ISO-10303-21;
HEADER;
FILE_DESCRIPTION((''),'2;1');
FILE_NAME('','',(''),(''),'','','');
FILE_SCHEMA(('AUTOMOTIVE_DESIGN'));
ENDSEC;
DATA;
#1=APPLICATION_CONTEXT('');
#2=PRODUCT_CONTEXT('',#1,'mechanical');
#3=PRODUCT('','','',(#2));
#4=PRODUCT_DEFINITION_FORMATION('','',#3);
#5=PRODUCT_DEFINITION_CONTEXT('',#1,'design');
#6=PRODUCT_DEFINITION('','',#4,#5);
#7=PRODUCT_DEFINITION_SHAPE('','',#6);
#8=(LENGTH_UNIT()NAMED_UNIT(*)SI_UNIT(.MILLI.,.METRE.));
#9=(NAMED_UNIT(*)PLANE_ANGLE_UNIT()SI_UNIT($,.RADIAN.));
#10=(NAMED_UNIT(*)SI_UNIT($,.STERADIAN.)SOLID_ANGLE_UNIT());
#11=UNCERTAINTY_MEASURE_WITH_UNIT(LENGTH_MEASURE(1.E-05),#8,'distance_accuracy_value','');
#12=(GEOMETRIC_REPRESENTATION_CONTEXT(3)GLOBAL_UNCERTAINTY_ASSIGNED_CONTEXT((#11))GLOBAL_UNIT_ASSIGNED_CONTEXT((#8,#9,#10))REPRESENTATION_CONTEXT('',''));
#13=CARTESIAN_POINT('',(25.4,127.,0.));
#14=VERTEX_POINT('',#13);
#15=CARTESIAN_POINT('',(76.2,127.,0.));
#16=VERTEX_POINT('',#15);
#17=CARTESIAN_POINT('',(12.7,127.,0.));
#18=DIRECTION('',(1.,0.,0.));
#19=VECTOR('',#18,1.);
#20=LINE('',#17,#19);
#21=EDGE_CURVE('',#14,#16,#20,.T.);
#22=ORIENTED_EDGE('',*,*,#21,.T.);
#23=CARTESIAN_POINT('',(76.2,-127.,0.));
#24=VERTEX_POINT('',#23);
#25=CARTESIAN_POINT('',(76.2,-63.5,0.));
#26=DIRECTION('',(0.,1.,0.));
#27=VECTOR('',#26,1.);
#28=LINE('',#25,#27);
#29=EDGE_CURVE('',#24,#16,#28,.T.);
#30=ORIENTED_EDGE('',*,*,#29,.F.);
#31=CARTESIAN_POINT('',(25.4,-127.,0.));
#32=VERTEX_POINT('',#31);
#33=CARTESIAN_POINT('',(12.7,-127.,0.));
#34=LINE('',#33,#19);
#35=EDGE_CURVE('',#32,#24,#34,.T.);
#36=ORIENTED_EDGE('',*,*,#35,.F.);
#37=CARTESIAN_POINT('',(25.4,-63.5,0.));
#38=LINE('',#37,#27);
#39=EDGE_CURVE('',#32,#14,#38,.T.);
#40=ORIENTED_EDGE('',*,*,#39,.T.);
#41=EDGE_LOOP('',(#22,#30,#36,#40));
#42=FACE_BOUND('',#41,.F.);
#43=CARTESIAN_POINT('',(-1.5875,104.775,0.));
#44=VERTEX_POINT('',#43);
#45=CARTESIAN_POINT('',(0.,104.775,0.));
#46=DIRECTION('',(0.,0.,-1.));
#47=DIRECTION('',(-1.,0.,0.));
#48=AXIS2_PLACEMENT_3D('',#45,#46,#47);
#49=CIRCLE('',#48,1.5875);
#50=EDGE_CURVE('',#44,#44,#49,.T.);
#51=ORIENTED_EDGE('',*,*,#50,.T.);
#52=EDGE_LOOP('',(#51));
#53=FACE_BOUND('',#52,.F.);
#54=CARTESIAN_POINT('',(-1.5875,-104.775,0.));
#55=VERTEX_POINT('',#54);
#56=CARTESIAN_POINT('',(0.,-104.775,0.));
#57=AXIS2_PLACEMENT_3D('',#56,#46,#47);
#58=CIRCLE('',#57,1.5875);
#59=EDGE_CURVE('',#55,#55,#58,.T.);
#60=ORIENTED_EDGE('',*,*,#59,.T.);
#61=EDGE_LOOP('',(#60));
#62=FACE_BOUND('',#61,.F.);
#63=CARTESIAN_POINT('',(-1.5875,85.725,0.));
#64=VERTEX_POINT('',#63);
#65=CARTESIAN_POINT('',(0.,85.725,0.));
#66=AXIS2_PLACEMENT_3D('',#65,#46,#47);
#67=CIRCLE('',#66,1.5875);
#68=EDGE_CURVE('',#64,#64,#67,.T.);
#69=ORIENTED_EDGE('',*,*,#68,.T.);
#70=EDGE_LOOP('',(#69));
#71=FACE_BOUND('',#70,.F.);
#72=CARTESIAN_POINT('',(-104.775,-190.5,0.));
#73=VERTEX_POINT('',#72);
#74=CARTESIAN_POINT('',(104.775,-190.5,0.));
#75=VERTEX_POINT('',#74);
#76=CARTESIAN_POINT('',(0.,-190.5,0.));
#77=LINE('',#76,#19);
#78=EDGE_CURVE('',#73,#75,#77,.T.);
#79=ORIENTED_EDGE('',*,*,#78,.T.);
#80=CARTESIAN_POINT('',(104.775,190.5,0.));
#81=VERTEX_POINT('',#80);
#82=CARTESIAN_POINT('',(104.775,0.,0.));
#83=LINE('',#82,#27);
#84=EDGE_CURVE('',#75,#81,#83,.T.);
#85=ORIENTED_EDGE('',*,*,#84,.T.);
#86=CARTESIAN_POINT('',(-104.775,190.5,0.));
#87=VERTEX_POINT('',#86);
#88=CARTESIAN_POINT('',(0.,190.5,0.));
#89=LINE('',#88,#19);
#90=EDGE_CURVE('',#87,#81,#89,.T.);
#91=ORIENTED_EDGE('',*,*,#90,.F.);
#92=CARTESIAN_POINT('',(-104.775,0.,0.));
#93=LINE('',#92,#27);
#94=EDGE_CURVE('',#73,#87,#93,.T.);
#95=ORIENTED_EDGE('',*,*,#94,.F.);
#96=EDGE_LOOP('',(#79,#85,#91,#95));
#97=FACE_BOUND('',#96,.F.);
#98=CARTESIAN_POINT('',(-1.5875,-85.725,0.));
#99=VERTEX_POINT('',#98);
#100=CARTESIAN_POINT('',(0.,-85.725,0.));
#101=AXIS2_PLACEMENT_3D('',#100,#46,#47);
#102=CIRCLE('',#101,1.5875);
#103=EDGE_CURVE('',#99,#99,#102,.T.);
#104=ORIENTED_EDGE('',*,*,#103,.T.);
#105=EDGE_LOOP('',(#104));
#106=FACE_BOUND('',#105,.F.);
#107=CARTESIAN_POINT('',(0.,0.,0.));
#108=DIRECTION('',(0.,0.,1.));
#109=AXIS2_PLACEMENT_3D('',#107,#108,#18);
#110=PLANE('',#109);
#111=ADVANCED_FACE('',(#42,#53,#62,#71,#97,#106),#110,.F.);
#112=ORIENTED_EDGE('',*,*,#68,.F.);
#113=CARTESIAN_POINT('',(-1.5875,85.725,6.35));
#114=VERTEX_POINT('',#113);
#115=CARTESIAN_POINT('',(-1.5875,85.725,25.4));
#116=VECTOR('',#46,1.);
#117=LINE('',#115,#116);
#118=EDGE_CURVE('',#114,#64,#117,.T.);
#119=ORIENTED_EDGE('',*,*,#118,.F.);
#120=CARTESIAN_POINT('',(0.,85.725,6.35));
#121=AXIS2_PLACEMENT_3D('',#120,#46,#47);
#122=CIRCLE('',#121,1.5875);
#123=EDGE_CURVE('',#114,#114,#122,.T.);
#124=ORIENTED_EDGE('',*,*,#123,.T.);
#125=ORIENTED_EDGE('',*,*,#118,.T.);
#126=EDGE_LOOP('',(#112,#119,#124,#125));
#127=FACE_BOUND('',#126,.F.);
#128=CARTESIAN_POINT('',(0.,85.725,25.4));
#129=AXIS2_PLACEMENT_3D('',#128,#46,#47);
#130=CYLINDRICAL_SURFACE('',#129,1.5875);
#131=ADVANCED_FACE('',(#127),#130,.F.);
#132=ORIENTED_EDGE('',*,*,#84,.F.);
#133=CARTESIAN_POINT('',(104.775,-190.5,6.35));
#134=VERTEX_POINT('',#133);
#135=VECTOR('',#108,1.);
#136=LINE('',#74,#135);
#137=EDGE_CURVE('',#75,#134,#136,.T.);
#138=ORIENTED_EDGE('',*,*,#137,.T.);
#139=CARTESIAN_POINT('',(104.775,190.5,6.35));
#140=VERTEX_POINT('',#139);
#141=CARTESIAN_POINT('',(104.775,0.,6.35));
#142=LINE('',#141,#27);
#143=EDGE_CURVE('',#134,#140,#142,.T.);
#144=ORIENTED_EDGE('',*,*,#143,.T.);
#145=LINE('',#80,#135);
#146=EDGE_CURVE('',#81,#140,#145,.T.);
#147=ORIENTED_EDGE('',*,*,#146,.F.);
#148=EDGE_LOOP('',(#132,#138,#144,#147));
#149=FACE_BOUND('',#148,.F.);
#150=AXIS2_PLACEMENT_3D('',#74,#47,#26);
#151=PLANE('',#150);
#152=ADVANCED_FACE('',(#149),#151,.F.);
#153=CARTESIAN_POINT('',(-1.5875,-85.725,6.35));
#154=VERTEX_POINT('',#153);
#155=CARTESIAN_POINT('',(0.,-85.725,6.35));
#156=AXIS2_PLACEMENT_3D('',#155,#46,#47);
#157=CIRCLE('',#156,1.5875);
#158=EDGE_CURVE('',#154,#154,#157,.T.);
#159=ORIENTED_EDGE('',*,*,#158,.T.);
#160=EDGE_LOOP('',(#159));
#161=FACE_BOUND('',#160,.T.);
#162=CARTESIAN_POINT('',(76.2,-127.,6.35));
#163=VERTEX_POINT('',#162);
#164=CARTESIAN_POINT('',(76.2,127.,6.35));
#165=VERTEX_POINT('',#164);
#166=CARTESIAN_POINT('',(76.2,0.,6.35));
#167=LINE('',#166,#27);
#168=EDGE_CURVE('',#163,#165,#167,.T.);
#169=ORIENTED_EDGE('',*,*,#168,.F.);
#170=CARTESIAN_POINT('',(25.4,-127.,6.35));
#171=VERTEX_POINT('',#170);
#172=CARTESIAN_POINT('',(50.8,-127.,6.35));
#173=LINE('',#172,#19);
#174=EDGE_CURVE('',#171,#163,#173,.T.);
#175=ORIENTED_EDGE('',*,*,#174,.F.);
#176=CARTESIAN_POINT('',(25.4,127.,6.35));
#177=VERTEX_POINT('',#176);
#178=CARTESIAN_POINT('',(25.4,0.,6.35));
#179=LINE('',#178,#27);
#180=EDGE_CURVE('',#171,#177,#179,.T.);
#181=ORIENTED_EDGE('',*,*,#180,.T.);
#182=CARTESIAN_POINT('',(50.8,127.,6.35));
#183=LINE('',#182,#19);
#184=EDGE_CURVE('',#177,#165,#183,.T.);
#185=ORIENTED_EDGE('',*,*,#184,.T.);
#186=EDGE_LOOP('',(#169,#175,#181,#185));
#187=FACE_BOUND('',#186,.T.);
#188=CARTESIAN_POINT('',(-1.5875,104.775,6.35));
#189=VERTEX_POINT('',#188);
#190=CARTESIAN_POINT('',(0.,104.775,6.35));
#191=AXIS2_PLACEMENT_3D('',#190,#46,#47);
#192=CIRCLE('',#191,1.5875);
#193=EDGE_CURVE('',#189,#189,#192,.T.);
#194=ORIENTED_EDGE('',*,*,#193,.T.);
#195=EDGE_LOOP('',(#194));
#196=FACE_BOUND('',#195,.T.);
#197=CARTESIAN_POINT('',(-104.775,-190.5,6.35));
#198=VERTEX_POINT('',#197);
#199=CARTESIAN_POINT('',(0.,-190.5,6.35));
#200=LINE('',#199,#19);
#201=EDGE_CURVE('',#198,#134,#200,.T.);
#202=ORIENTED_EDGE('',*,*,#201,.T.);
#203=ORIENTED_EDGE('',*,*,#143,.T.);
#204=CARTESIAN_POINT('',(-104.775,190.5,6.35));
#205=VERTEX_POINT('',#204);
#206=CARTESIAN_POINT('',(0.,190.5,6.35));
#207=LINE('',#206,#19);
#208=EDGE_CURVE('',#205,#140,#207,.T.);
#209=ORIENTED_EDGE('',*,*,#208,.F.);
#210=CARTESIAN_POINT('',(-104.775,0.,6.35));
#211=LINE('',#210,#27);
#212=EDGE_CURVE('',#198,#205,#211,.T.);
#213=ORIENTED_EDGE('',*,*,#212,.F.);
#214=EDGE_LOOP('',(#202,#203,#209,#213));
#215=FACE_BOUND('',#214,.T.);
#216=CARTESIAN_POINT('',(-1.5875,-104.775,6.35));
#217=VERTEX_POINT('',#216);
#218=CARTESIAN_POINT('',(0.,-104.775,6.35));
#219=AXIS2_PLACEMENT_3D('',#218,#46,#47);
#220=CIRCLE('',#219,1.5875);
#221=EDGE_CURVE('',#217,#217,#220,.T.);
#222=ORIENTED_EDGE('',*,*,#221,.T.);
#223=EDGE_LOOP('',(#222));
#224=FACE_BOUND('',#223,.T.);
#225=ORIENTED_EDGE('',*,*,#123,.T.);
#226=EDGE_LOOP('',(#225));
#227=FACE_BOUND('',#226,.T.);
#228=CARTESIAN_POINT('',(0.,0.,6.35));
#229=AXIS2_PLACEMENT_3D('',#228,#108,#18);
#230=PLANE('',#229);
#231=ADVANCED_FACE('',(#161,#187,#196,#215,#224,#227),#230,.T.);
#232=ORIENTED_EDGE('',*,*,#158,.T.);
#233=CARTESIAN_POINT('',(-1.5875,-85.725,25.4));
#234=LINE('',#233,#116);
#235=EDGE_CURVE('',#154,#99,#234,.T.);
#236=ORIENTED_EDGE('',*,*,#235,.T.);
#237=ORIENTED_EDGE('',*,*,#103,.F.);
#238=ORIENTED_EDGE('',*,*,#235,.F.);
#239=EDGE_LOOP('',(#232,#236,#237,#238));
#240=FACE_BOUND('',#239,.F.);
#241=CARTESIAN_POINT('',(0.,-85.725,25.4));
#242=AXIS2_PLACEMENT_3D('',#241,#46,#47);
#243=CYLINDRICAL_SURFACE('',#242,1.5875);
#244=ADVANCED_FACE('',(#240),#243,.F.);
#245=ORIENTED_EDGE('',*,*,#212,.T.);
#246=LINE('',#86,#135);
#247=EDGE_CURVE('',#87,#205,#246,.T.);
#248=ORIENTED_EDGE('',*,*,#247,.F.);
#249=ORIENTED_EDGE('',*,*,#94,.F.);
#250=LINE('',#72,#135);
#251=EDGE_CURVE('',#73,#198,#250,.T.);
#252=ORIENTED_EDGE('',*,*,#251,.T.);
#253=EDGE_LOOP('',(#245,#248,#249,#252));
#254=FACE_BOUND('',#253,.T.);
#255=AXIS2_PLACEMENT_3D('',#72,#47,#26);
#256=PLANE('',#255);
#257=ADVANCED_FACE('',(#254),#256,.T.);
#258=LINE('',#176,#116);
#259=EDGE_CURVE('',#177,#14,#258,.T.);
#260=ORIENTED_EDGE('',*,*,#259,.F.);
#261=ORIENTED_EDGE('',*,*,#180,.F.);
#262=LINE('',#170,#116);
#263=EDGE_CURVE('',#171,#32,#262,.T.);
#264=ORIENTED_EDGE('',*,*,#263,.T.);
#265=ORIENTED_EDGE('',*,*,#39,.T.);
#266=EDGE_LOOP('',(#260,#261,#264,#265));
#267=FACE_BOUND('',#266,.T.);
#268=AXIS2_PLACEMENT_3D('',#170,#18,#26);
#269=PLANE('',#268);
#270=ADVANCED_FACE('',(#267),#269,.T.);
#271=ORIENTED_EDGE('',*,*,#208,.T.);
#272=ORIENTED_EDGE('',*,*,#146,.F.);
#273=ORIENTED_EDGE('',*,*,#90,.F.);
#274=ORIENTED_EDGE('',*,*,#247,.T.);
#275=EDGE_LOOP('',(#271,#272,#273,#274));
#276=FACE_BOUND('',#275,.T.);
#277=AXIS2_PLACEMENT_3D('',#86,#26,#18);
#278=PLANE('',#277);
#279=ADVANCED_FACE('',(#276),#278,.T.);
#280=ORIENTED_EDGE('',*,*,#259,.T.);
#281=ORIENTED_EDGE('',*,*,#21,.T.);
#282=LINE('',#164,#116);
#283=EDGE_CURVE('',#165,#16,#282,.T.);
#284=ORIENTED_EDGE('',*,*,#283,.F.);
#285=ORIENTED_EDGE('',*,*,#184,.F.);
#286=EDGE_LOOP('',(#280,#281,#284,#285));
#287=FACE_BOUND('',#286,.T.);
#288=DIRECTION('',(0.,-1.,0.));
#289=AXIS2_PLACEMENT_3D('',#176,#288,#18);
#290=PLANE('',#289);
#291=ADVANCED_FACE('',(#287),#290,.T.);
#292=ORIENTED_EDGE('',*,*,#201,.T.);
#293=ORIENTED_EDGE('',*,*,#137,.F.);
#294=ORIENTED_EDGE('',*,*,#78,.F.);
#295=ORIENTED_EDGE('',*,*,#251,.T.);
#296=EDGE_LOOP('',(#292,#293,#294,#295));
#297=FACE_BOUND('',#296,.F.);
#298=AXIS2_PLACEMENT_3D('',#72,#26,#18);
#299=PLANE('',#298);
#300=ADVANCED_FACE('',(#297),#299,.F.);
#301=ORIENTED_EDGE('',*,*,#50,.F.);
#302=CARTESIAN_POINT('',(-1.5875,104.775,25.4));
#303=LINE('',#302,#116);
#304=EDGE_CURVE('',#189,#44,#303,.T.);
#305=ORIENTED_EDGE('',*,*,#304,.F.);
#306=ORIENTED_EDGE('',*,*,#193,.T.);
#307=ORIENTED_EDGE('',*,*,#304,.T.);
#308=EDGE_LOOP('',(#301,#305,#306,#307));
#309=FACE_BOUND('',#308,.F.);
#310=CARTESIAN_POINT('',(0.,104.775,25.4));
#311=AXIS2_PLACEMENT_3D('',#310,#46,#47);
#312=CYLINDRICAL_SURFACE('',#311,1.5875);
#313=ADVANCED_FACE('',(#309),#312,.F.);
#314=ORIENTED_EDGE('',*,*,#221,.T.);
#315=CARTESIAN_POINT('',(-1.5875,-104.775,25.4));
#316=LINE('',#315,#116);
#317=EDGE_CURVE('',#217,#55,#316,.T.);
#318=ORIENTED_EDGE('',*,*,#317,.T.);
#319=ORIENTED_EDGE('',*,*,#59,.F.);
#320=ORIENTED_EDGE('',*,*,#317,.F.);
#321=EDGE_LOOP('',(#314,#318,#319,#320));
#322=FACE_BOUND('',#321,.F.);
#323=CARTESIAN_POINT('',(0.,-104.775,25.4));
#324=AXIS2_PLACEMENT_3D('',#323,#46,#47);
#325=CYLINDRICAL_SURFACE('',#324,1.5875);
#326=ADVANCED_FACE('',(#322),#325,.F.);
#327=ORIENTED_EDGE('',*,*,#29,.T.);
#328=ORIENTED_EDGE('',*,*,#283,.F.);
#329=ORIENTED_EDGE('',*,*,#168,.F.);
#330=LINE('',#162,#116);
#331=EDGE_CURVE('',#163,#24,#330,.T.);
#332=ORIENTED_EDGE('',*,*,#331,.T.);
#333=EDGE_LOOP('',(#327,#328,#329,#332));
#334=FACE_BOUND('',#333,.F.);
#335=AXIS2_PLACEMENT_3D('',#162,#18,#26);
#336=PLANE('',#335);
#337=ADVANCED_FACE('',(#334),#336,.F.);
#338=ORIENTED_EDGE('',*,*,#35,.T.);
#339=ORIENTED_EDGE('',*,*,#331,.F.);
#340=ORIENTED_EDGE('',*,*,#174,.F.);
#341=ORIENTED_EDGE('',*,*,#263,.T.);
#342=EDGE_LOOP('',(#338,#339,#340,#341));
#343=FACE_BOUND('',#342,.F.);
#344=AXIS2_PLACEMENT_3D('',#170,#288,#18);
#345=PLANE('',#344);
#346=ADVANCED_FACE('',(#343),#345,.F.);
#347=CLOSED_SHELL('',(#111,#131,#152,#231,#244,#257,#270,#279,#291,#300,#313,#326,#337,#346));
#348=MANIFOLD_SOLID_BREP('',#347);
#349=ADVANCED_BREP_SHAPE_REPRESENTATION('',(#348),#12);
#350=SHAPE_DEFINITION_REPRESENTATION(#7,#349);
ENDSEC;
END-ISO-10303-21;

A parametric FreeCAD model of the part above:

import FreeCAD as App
import Part
import Sketcher

V = App.Vector
Q = App.Units.Quantity


def add_polygon(sketch, points):
    """Adds a closed chain of lines whose ends are joined by coincident constraints."""
    first, n = sketch.GeometryCount, len(points)
    for a, b in zip(points, points[1:] + points[:1]):
        sketch.addGeometry(Part.LineSegment(App.Vector(*a, 0), App.Vector(*b, 0)), False)
    for i in range(n):
        sketch.addConstraint(Sketcher.Constraint("Coincident", first + i, 2, first + (i + 1) % n, 1))

doc = App.newDocument("Part")
body = doc.addObject("PartDesign::Body", "Body")

sketch1 = doc.addObject("Sketcher::SketchObject", "Sketch")
body.addObject(sketch1)
sketch1.AttachmentSupport = (doc.XY_Plane, [""])
sketch1.MapMode = "FlatFace"
add_polygon(sketch1, [(-105, 190), (-105, -190), (105, -190), (105, 190)])
sketch1.addConstraint(Sketcher.Constraint("Vertical", 0))
sketch1.addConstraint(Sketcher.Constraint("Horizontal", 1))
sketch1.addConstraint(Sketcher.Constraint("Vertical", 2))
sketch1.addConstraint(Sketcher.Constraint("Horizontal", 3))
sketch1.addConstraint(Sketcher.Constraint("Symmetric", 0, 2, 2, 2, -1, 1))
sketch1.addConstraint(Sketcher.Constraint("DistanceY", 0, 2, 0, 1, Q("15 in")))
sketch1.addConstraint(Sketcher.Constraint("DistanceX", 1, 1, 1, 2, Q("8.25 in")))
pad1 = doc.addObject("PartDesign::Pad", "Pad")
body.addObject(pad1)
pad1.Profile = sketch1
pad1.Length = Q("0.25 in")

sketch2 = doc.addObject("Sketcher::SketchObject", "Sketch001")
body.addObject(sketch2)
sketch2.AttachmentSupport = (doc.XY_Plane, [""])
sketch2.MapMode = "FlatFace"
sketch2.AttachmentOffset = App.Placement(V(0, 0, 0.25 * 25.4), App.Rotation())
add_polygon(sketch2, [(25, 127), (25, -127), (76, -127), (76, 127)])
sketch2.addConstraint(Sketcher.Constraint("Vertical", 0))
sketch2.addConstraint(Sketcher.Constraint("Horizontal", 1))
sketch2.addConstraint(Sketcher.Constraint("Vertical", 2))
sketch2.addConstraint(Sketcher.Constraint("Horizontal", 3))
sketch2.addConstraint(Sketcher.Constraint("DistanceX", 1, 1, 1, 2, Q("2 in")))
sketch2.addConstraint(Sketcher.Constraint("DistanceY", 0, 2, 0, 1, Q("10 in")))
sketch2.addConstraint(Sketcher.Constraint("DistanceX", -1, 1, 0, 2, Q("1 in")))
sketch2.addConstraint(Sketcher.Constraint("DistanceY", 0, 2, -1, 1, Q("5 in")))
pocket1 = doc.addObject("PartDesign::Pocket", "Pocket")
body.addObject(pocket1)
pocket1.Profile = sketch2
pocket1.Length = Q("1 in")

sketch3 = doc.addObject("Sketcher::SketchObject", "Sketch002")
body.addObject(sketch3)
sketch3.AttachmentSupport = (doc.XY_Plane, [""])
sketch3.MapMode = "FlatFace"
sketch3.AttachmentOffset = App.Placement(V(0, 0, 0.25 * 25.4), App.Rotation())
sketch3.addGeometry(Part.Circle(V(0, -104.8, 0), V(0, 0, 1), 1.6), False)
sketch3.addGeometry(Part.Circle(V(0, -85.7, 0), V(0, 0, 1), 1.6), False)
sketch3.addGeometry(Part.Circle(V(0, 85.7, 0), V(0, 0, 1), 1.6), False)
sketch3.addGeometry(Part.Circle(V(0, 104.8, 0), V(0, 0, 1), 1.6), False)
sketch3.addConstraint(Sketcher.Constraint("Equal", 0, 1))
sketch3.addConstraint(Sketcher.Constraint("Equal", 1, 2))
sketch3.addConstraint(Sketcher.Constraint("Equal", 2, 3))
sketch3.addConstraint(Sketcher.Constraint("Symmetric", 1, 3, 2, 3, -1, 1))
sketch3.addConstraint(Sketcher.Constraint("Symmetric", 0, 3, 3, 3, -1, 1))
sketch3.addConstraint(Sketcher.Constraint("PointOnObject", 0, 3, -2))
sketch3.addConstraint(Sketcher.Constraint("PointOnObject", 1, 3, -2))
sketch3.addConstraint(Sketcher.Constraint("Diameter", 0, Q("0.125 in")))
sketch3.addConstraint(Sketcher.Constraint("DistanceY", 0, 3, 2, 3, Q("7.5 in")))
sketch3.addConstraint(Sketcher.Constraint("DistanceY", 0, 3, 1, 3, Q("0.75 in")))
doc.recompute()
hole = doc.addObject("PartDesign::Hole", "Hole")
body.addObject(hole)
hole.Profile = sketch3
hole.ThreadType = "None"
hole.Diameter = Q("0.125 in")
hole.DepthType = "Dimension"
hole.Depth = Q("0.75 in")
hole.DrillPoint = "Flat"

doc.recompute()
